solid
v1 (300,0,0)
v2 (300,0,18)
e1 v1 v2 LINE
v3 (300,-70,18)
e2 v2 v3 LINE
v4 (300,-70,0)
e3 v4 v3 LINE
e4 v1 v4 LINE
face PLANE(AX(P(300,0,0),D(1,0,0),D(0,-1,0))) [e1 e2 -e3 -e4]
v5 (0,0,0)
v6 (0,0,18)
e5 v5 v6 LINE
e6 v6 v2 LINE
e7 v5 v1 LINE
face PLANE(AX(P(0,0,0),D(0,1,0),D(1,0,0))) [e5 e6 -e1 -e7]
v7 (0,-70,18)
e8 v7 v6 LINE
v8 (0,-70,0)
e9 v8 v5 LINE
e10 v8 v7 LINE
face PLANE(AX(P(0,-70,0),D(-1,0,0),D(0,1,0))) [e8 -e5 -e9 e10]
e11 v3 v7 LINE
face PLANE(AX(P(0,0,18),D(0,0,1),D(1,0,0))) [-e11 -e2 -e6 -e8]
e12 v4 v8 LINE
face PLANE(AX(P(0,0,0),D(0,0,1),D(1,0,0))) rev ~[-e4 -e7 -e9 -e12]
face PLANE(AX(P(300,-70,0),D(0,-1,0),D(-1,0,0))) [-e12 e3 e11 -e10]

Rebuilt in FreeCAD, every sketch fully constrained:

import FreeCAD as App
import Part
import Sketcher

V = App.Vector


def add_polygon(sketch, points):
    """Adds a closed chain of lines whose ends are joined by coincident constraints."""
    first, n = sketch.GeometryCount, len(points)
    for a, b in zip(points, points[1:] + points[:1]):
        sketch.addGeometry(Part.LineSegment(App.Vector(*a, 0), App.Vector(*b, 0)), False)
    for i in range(n):
        sketch.addConstraint(Sketcher.Constraint("Coincident", first + i, 2, first + (i + 1) % n, 1))

doc = App.newDocument("Part")
body = doc.addObject("PartDesign::Body", "Body")

# Sketch on XY plane
sketch1 = doc.addObject("Sketcher::SketchObject", "Sketch")
body.addObject(sketch1)
sketch1.AttachmentSupport = (doc.XY_Plane, [""])
sketch1.MapMode = "FlatFace"
add_polygon(sketch1, [(300, 0), (0, 0), (0, -70), (300, -70)])  # lines 0-3
sketch1.addConstraint([
    Sketcher.Constraint("Horizontal", 0),
    Sketcher.Constraint("Vertical", 1),
    Sketcher.Constraint("Horizontal", 2),
    Sketcher.Constraint("Vertical", 3),
    Sketcher.Constraint("Coincident", 0, 2, -1, 1),
    Sketcher.Constraint("DistanceX", 0, 2, 0, 1, 300.0),
    Sketcher.Constraint("DistanceY", 1, 2, 1, 1, 70.0),
])
pad1 = doc.addObject("PartDesign::Pad", "Pad")
body.addObject(pad1)
pad1.Profile = sketch1
pad1.Length = 18

doc.recompute()
